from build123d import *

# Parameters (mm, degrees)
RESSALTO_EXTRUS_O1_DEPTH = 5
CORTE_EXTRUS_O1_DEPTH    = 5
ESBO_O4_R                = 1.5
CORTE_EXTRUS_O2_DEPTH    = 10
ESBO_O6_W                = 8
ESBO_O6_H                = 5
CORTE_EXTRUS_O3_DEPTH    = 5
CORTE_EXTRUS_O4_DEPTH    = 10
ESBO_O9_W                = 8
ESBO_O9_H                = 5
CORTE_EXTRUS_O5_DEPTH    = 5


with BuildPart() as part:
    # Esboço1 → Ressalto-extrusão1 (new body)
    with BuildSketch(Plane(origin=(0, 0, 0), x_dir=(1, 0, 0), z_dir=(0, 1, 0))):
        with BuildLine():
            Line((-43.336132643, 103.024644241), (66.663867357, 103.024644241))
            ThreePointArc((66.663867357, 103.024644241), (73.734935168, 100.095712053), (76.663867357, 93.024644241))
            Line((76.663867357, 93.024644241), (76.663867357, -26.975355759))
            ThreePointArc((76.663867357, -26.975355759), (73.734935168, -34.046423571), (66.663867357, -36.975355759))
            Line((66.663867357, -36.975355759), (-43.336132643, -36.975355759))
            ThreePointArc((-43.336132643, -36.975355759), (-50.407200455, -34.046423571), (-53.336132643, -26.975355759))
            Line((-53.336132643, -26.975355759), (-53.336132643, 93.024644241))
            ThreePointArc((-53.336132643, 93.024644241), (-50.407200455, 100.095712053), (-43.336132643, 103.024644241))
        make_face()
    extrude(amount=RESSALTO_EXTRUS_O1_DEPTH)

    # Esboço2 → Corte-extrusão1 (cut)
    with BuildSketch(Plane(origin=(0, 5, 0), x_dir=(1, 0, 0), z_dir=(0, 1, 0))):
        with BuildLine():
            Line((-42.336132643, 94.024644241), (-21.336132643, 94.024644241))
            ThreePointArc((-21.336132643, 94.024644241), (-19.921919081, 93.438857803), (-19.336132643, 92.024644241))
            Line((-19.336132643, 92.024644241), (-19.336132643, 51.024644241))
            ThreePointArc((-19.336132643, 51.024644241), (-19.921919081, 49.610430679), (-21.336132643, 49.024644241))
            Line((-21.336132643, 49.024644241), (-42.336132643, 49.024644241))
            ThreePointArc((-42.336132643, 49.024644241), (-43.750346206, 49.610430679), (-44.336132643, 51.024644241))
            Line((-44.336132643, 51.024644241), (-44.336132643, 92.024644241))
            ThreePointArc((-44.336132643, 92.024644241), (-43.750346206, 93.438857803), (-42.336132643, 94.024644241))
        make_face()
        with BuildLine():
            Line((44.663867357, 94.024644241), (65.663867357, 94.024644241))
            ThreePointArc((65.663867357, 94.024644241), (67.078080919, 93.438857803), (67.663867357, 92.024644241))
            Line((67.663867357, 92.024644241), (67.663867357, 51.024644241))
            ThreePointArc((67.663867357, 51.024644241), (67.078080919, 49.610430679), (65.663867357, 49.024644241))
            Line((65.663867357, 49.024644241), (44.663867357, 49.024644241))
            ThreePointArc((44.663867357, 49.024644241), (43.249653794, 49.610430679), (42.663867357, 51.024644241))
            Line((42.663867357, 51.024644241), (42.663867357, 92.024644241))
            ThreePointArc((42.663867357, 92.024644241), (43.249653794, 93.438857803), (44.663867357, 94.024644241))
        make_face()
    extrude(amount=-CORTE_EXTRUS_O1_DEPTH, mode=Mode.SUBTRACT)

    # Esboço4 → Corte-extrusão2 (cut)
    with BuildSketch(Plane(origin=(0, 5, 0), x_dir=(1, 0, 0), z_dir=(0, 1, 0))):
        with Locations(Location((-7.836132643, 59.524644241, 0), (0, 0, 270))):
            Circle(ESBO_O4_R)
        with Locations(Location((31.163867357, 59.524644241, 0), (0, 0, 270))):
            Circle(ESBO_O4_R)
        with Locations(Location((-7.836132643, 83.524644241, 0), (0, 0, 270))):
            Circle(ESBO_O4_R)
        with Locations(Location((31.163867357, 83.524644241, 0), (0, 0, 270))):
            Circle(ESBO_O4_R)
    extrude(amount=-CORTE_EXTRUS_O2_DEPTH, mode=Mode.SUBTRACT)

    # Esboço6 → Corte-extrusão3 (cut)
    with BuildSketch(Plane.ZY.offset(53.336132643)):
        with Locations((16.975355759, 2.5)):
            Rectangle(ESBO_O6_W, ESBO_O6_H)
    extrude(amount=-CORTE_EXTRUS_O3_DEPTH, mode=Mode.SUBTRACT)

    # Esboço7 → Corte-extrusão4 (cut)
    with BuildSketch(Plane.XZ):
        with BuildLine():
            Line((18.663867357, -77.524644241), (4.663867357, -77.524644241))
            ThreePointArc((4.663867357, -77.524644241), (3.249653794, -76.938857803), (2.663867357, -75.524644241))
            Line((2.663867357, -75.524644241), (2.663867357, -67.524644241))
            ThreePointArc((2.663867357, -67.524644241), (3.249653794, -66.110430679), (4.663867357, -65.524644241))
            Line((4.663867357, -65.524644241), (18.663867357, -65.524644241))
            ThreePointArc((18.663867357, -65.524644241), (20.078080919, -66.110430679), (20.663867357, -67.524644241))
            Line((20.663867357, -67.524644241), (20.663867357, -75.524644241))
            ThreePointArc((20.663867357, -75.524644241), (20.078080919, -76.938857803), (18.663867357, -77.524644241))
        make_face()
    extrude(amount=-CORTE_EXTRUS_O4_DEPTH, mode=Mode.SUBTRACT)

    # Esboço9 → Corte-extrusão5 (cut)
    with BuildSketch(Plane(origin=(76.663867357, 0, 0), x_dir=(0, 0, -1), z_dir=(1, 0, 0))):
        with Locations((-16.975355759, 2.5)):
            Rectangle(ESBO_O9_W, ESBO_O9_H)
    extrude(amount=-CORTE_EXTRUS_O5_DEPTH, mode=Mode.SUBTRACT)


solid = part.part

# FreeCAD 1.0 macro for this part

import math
import FreeCAD as App
import Part
import Sketcher
Q = App.Units.Quantity

doc = App.newDocument("Part")
body = doc.addObject("PartDesign::Body", "Body")

# Sketch on XZ plane
sketch1 = body.newObject("Sketcher::SketchObject", "Sketch")
sketch1.AttachmentSupport = (doc.getObject("XZ_Plane"), [""])
sketch1.MapMode = "FlatFace"
sketch1.addGeometry([
    Part.LineSegment(App.Vector(67, -103, 0), App.Vector(-43, -103, 0)),  # 0
    Part.ArcOfCircle(Part.Circle(App.Vector(-43, -93, 0), App.Vector(0, 0, 1), 10), math.radians(180), math.radians(270)),  # 1
    Part.LineSegment(App.Vector(-53, -93, 0), App.Vector(-53, 27, 0)),  # 2
    Part.ArcOfCircle(Part.Circle(App.Vector(-43, 27, 0), App.Vector(0, 0, 1), 10), math.radians(90), math.radians(180)),  # 3
    Part.LineSegment(App.Vector(-43, 37, 0), App.Vector(67, 37, 0)),  # 4
    Part.ArcOfCircle(Part.Circle(App.Vector(67, 27, 0), App.Vector(0, 0, 1), 10), math.radians(0), math.radians(90)),  # 5
    Part.LineSegment(App.Vector(77, 27, 0), App.Vector(77, -93, 0)),  # 6
    Part.ArcOfCircle(Part.Circle(App.Vector(67, -93, 0), App.Vector(0, 0, 1), 10), math.radians(-90), math.radians(0)),  # 7
], False)
sketch1.addConstraint([
    Sketcher.Constraint("Tangent", 0, 2, 1, 2),
    Sketcher.Constraint("Tangent", 1, 1, 2, 1),
    Sketcher.Constraint("Tangent", 2, 2, 3, 2),
    Sketcher.Constraint("Tangent", 3, 1, 4, 1),
    Sketcher.Constraint("Tangent", 4, 2, 5, 2),
    Sketcher.Constraint("Tangent", 5, 1, 6, 1),
    Sketcher.Constraint("Tangent", 6, 2, 7, 2),
    Sketcher.Constraint("Tangent", 7, 1, 0, 1),
    Sketcher.Constraint("Horizontal", 0),
    Sketcher.Constraint("Vertical", 2),
    Sketcher.Constraint("Horizontal", 4),
    Sketcher.Constraint("Vertical", 6),
    Sketcher.Constraint("Equal", 1, 3),
    Sketcher.Constraint("Equal", 3, 5),
    Sketcher.Constraint("Equal", 5, 7),
    Sketcher.Constraint("Radius", 1, Q("10 mm")),
    Sketcher.Constraint("DistanceX", 0, 2, 0, 1, Q("110 mm")),
    Sketcher.Constraint("DistanceY", 2, 1, 2, 2, Q("120 mm")),
    Sketcher.Constraint("DistanceX", 1, 3, -1, 1, Q("43.336133 mm")),
    Sketcher.Constraint("DistanceY", 1, 3, -1, 1, Q("93.024644 mm")),
])
pad1 = body.newObject("PartDesign::Pad", "Pad")
pad1.Profile = sketch1
pad1.Length = 5
pad1.Reversed = True

# Sketch on XZ plane
sketch2 = body.newObject("Sketcher::SketchObject", "Sketch001")
sketch2.AttachmentSupport = (doc.getObject("XZ_Plane"), [""])
sketch2.MapMode = "FlatFace"
sketch2.AttachmentOffset = App.Placement(App.Vector(0, 0, -5), App.Rotation())
sketch2.addGeometry([
    Part.LineSegment(App.Vector(-21.3, -94, 0), App.Vector(-42.3, -94, 0)),  # 0
    Part.ArcOfCircle(Part.Circle(App.Vector(-42.3, -92, 0), App.Vector(0, 0, 1), 2), math.radians(180), math.radians(270)),  # 1
    Part.LineSegment(App.Vector(-44.3, -92, 0), App.Vector(-44.3, -51, 0)),  # 2
    Part.ArcOfCircle(Part.Circle(App.Vector(-42.3, -51, 0), App.Vector(0, 0, 1), 2), math.radians(90), math.radians(180)),  # 3
    Part.LineSegment(App.Vector(-42.3, -49, 0), App.Vector(-21.3, -49, 0)),  # 4
    Part.ArcOfCircle(Part.Circle(App.Vector(-21.3, -51, 0), App.Vector(0, 0, 1), 2), math.radians(0), math.radians(90)),  # 5
    Part.LineSegment(App.Vector(-19.3, -51, 0), App.Vector(-19.3, -92, 0)),  # 6
    Part.ArcOfCircle(Part.Circle(App.Vector(-21.3, -92, 0), App.Vector(0, 0, 1), 2), math.radians(-90), math.radians(0)),  # 7
    Part.LineSegment(App.Vector(65.7, -94, 0), App.Vector(44.7, -94, 0)),  # 8
    Part.ArcOfCircle(Part.Circle(App.Vector(44.7, -92, 0), App.Vector(0, 0, 1), 2), math.radians(180), math.radians(270)),  # 9
    Part.LineSegment(App.Vector(42.7, -92, 0), App.Vector(42.7, -51, 0)),  # 10
    Part.ArcOfCircle(Part.Circle(App.Vector(44.7, -51, 0), App.Vector(0, 0, 1), 2), math.radians(90), math.radians(180)),  # 11
    Part.LineSegment(App.Vector(44.7, -49, 0), App.Vector(65.7, -49, 0)),  # 12
    Part.ArcOfCircle(Part.Circle(App.Vector(65.7, -51, 0), App.Vector(0, 0, 1), 2), math.radians(0), math.radians(90)),  # 13
    Part.LineSegment(App.Vector(67.7, -51, 0), App.Vector(67.7, -92, 0)),  # 14
    Part.ArcOfCircle(Part.Circle(App.Vector(65.7, -92, 0), App.Vector(0, 0, 1), 2), math.radians(-90), math.radians(0)),  # 15
], False)
sketch2.addConstraint([
    Sketcher.Constraint("Tangent", 0, 2, 1, 2),
    Sketcher.Constraint("Tangent", 1, 1, 2, 1),
    Sketcher.Constraint("Tangent", 2, 2, 3, 2),
    Sketcher.Constraint("Tangent", 3, 1, 4, 1),
    Sketcher.Constraint("Tangent", 4, 2, 5, 2),
    Sketcher.Constraint("Tangent", 5, 1, 6, 1),
    Sketcher.Constraint("Tangent", 6, 2, 7, 2),
    Sketcher.Constraint("Tangent", 7, 1, 0, 1),
    Sketcher.Constraint("Tangent", 8, 2, 9, 2),
    Sketcher.Constraint("Tangent", 9, 1, 10, 1),
    Sketcher.Constraint("Tangent", 10, 2, 11, 2),
    Sketcher.Constraint("Tangent", 11, 1, 12, 1),
    Sketcher.Constraint("Tangent", 12, 2, 13, 2),
    Sketcher.Constraint("Tangent", 13, 1, 14, 1),
    Sketcher.Constraint("Tangent", 14, 2, 15, 2),
    Sketcher.Constraint("Tangent", 15, 1, 8, 1),
    Sketcher.Constraint("Horizontal", 0),
    Sketcher.Constraint("Vertical", 2),
    Sketcher.Constraint("Horizontal", 4),
    Sketcher.Constraint("Vertical", 6),
    Sketcher.Constraint("Horizontal", 8),
    Sketcher.Constraint("Vertical", 10),
    Sketcher.Constraint("Horizontal", 12),
    Sketcher.Constraint("Vertical", 14),
    Sketcher.Constraint("Equal", 1, 3),
    Sketcher.Constraint("Equal", 3, 5),
    Sketcher.Constraint("Equal", 5, 7),
    Sketcher.Constraint("Equal", 7, 9),
    Sketcher.Constraint("Equal", 9, 11),
    Sketcher.Constraint("Equal", 11, 13),
    Sketcher.Constraint("Equal", 13, 15),
    Sketcher.Constraint("Horizontal", 7, 3, 9, 3),
    Sketcher.Constraint("Horizontal", 5, 3, 11, 3),
    Sketcher.Constraint("Equal", 4, 8),
    Sketcher.Constraint("Radius", 1, Q("2 mm")),
    Sketcher.Constraint("DistanceX", 0, 2, 0, 1, Q("21 mm")),
    Sketcher.Constraint("DistanceY", 2, 1, 2, 2, Q("41 mm")),
    Sketcher.Constraint("DistanceX", 7, 3, 9, 3, Q("66 mm")),
    Sketcher.Constraint("DistanceX", 1, 3, -1, 1, Q("42.336133 mm")),
    Sketcher.Constraint("DistanceY", 1, 3, -1, 1, Q("92.024644 mm")),
])
pocket1 = body.newObject("PartDesign::Pocket", "Pocket")
pocket1.Profile = sketch2
pocket1.Length = 5
pocket1.Reversed = True

# Sketch on XZ plane
sketch3 = body.newObject("Sketcher::SketchObject", "Sketch002")
sketch3.AttachmentSupport = (doc.getObject("XZ_Plane"), [""])
sketch3.MapMode = "FlatFace"
sketch3.AttachmentOffset = App.Placement(App.Vector(0, 0, -5), App.Rotation())
sketch3.addGeometry([
    Part.Circle(App.Vector(-7.8, -59.5, 0), App.Vector(0, 0, 1), 1.5),
    Part.Circle(App.Vector(31.2, -59.5, 0), App.Vector(0, 0, 1), 1.5),
    Part.Circle(App.Vector(-7.8, -83.5, 0), App.Vector(0, 0, 1), 1.5),
    Part.Circle(App.Vector(31.2, -83.5, 0), App.Vector(0, 0, 1), 1.5),
], False)
sketch3.addConstraint([
    Sketcher.Constraint("Equal", 0, 1),
    Sketcher.Constraint("Equal", 1, 2),
    Sketcher.Constraint("Equal", 2, 3),
    Sketcher.Constraint("Horizontal", 0, 3, 1, 3),
    Sketcher.Constraint("Horizontal", 2, 3, 3, 3),
    Sketcher.Constraint("Vertical", 0, 3, 2, 3),
    Sketcher.Constraint("Vertical", 1, 3, 3, 3),
    Sketcher.Constraint("Diameter", 0, Q("3 mm")),
    Sketcher.Constraint("DistanceX", 0, 3, 1, 3, Q("39 mm")),
    Sketcher.Constraint("DistanceY", 2, 3, 0, 3, Q("24 mm")),
    Sketcher.Constraint("DistanceX", 0, 3, -1, 1, Q("7.836133 mm")),
    Sketcher.Constraint("DistanceY", 0, 3, -1, 1, Q("59.524644 mm")),
])
pocket2 = body.newObject("PartDesign::Pocket", "Pocket001")
pocket2.Profile = sketch3
pocket2.Length = 10
pocket2.Reversed = True

# Sketch on YZ plane
sketch4 = body.newObject("Sketcher::SketchObject", "Sketch003")
sketch4.AttachmentSupport = (doc.getObject("YZ_Plane"), [""])
sketch4.MapMode = "FlatFace"
sketch4.AttachmentOffset = App.Placement(App.Vector(0, 0, -53.336133), App.Rotation())
sketch4.addGeometry([
    Part.LineSegment(App.Vector(5, 13, 0), App.Vector(0, 13, 0)),
    Part.LineSegment(App.Vector(0, 13, 0), App.Vector(0, 21, 0)),
    Part.LineSegment(App.Vector(0, 21, 0), App.Vector(5, 21, 0)),
    Part.LineSegment(App.Vector(5, 21, 0), App.Vector(5, 13, 0)),
], False)
sketch4.addConstraint([
    Sketcher.Constraint("Coincident", 0, 2, 1, 1),
    Sketcher.Constraint("Coincident", 1, 2, 2, 1),
    Sketcher.Constraint("Coincident", 2, 2, 3, 1),
    Sketcher.Constraint("Coincident", 3, 2, 0, 1),
    Sketcher.Constraint("Horizontal", 0),
    Sketcher.Constraint("Vertical", 1),
    Sketcher.Constraint("Horizontal", 2),
    Sketcher.Constraint("Vertical", 3),
    Sketcher.Constraint("PointOnObject", 0, 2, -2),
    Sketcher.Constraint("DistanceX", 0, 2, 0, 1, Q("5 mm")),
    Sketcher.Constraint("DistanceY", 1, 1, 1, 2, Q("8 mm")),
    Sketcher.Constraint("DistanceY", -1, 1, 0, 2, Q("12.975356 mm")),
])
pocket3 = body.newObject("PartDesign::Pocket", "Pocket002")
pocket3.Profile = sketch4
pocket3.Length = 5
pocket3.Reversed = True

# Sketch on XZ plane
sketch5 = body.newObject("Sketcher::SketchObject", "Sketch004")
sketch5.AttachmentSupport = (doc.getObject("XZ_Plane"), [""])
sketch5.MapMode = "FlatFace"
sketch5.addGeometry([
    Part.LineSegment(App.Vector(4.7, -77.5, 0), App.Vector(18.7, -77.5, 0)),  # 0
    Part.ArcOfCircle(Part.Circle(App.Vector(18.7, -75.5, 0), App.Vector(0, 0, 1), 2), math.radians(-90), math.radians(0)),  # 1
    Part.LineSegment(App.Vector(20.7, -75.5, 0), App.Vector(20.7, -67.5, 0)),  # 2
    Part.ArcOfCircle(Part.Circle(App.Vector(18.7, -67.5, 0), App.Vector(0, 0, 1), 2), math.radians(0), math.radians(90)),  # 3
    Part.LineSegment(App.Vector(18.7, -65.5, 0), App.Vector(4.7, -65.5, 0)),  # 4
    Part.ArcOfCircle(Part.Circle(App.Vector(4.7, -67.5, 0), App.Vector(0, 0, 1), 2), math.radians(90), math.radians(180)),  # 5
    Part.LineSegment(App.Vector(2.7, -67.5, 0), App.Vector(2.7, -75.5, 0)),  # 6
    Part.ArcOfCircle(Part.Circle(App.Vector(4.7, -75.5, 0), App.Vector(0, 0, 1), 2), math.radians(180), math.radians(270)),  # 7
], False)
sketch5.addConstraint([
    Sketcher.Constraint("Tangent", 0, 2, 1, 1),
    Sketcher.Constraint("Tangent", 1, 2, 2, 1),
    Sketcher.Constraint("Tangent", 2, 2, 3, 1),
    Sketcher.Constraint("Tangent", 3, 2, 4, 1),
    Sketcher.Constraint("Tangent", 4, 2, 5, 1),
    Sketcher.Constraint("Tangent", 5, 2, 6, 1),
    Sketcher.Constraint("Tangent", 6, 2, 7, 1),
    Sketcher.Constraint("Tangent", 7, 2, 0, 1),
    Sketcher.Constraint("Horizontal", 0),
    Sketcher.Constraint("Vertical", 2),
    Sketcher.Constraint("Horizontal", 4),
    Sketcher.Constraint("Vertical", 6),
    Sketcher.Constraint("Equal", 1, 3),
    Sketcher.Constraint("Equal", 3, 5),
    Sketcher.Constraint("Equal", 5, 7),
    Sketcher.Constraint("Radius", 1, Q("2 mm")),
    Sketcher.Constraint("DistanceX", 0, 1, 0, 2, Q("14 mm")),
    Sketcher.Constraint("DistanceY", 2, 1, 2, 2, Q("8 mm")),
    Sketcher.Constraint("DistanceX", -1, 1, 1, 3, Q("18.663867 mm")),
    Sketcher.Constraint("DistanceY", 1, 3, -1, 1, Q("75.524644 mm")),
])
pocket4 = body.newObject("PartDesign::Pocket", "Pocket003")
pocket4.Profile = sketch5
pocket4.Length = 10

# Sketch on YZ plane
sketch6 = body.newObject("Sketcher::SketchObject", "Sketch005")
sketch6.AttachmentSupport = (doc.getObject("YZ_Plane"), [""])
sketch6.MapMode = "FlatFace"
sketch6.AttachmentOffset = App.Placement(App.Vector(0, 0, 76.663867), App.Rotation())
sketch6.addGeometry([
    Part.LineSegment(App.Vector(5, 21, 0), App.Vector(0, 21, 0)),
    Part.LineSegment(App.Vector(0, 21, 0), App.Vector(0, 13, 0)),
    Part.LineSegment(App.Vector(0, 13, 0), App.Vector(5, 13, 0)),
    Part.LineSegment(App.Vector(5, 13, 0), App.Vector(5, 21, 0)),
], False)
sketch6.addConstraint([
    Sketcher.Constraint("Coincident", 0, 2, 1, 1),
    Sketcher.Constraint("Coincident", 1, 2, 2, 1),
    Sketcher.Constraint("Coincident", 2, 2, 3, 1),
    Sketcher.Constraint("Coincident", 3, 2, 0, 1),
    Sketcher.Constraint("Horizontal", 0),
    Sketcher.Constraint("Vertical", 1),
    Sketcher.Constraint("Horizontal", 2),
    Sketcher.Constraint("Vertical", 3),
    Sketcher.Constraint("PointOnObject", 0, 2, -2),
    Sketcher.Constraint("DistanceX", 0, 2, 0, 1, Q("5 mm")),
    Sketcher.Constraint("DistanceY", 1, 2, 1, 1, Q("8 mm")),
    Sketcher.Constraint("DistanceY", -1, 1, 0, 2, Q("20.975356 mm")),
])
pocket5 = body.newObject("PartDesign::Pocket", "Pocket004")
pocket5.Profile = sketch6
pocket5.Length = 5

doc.recompute()
